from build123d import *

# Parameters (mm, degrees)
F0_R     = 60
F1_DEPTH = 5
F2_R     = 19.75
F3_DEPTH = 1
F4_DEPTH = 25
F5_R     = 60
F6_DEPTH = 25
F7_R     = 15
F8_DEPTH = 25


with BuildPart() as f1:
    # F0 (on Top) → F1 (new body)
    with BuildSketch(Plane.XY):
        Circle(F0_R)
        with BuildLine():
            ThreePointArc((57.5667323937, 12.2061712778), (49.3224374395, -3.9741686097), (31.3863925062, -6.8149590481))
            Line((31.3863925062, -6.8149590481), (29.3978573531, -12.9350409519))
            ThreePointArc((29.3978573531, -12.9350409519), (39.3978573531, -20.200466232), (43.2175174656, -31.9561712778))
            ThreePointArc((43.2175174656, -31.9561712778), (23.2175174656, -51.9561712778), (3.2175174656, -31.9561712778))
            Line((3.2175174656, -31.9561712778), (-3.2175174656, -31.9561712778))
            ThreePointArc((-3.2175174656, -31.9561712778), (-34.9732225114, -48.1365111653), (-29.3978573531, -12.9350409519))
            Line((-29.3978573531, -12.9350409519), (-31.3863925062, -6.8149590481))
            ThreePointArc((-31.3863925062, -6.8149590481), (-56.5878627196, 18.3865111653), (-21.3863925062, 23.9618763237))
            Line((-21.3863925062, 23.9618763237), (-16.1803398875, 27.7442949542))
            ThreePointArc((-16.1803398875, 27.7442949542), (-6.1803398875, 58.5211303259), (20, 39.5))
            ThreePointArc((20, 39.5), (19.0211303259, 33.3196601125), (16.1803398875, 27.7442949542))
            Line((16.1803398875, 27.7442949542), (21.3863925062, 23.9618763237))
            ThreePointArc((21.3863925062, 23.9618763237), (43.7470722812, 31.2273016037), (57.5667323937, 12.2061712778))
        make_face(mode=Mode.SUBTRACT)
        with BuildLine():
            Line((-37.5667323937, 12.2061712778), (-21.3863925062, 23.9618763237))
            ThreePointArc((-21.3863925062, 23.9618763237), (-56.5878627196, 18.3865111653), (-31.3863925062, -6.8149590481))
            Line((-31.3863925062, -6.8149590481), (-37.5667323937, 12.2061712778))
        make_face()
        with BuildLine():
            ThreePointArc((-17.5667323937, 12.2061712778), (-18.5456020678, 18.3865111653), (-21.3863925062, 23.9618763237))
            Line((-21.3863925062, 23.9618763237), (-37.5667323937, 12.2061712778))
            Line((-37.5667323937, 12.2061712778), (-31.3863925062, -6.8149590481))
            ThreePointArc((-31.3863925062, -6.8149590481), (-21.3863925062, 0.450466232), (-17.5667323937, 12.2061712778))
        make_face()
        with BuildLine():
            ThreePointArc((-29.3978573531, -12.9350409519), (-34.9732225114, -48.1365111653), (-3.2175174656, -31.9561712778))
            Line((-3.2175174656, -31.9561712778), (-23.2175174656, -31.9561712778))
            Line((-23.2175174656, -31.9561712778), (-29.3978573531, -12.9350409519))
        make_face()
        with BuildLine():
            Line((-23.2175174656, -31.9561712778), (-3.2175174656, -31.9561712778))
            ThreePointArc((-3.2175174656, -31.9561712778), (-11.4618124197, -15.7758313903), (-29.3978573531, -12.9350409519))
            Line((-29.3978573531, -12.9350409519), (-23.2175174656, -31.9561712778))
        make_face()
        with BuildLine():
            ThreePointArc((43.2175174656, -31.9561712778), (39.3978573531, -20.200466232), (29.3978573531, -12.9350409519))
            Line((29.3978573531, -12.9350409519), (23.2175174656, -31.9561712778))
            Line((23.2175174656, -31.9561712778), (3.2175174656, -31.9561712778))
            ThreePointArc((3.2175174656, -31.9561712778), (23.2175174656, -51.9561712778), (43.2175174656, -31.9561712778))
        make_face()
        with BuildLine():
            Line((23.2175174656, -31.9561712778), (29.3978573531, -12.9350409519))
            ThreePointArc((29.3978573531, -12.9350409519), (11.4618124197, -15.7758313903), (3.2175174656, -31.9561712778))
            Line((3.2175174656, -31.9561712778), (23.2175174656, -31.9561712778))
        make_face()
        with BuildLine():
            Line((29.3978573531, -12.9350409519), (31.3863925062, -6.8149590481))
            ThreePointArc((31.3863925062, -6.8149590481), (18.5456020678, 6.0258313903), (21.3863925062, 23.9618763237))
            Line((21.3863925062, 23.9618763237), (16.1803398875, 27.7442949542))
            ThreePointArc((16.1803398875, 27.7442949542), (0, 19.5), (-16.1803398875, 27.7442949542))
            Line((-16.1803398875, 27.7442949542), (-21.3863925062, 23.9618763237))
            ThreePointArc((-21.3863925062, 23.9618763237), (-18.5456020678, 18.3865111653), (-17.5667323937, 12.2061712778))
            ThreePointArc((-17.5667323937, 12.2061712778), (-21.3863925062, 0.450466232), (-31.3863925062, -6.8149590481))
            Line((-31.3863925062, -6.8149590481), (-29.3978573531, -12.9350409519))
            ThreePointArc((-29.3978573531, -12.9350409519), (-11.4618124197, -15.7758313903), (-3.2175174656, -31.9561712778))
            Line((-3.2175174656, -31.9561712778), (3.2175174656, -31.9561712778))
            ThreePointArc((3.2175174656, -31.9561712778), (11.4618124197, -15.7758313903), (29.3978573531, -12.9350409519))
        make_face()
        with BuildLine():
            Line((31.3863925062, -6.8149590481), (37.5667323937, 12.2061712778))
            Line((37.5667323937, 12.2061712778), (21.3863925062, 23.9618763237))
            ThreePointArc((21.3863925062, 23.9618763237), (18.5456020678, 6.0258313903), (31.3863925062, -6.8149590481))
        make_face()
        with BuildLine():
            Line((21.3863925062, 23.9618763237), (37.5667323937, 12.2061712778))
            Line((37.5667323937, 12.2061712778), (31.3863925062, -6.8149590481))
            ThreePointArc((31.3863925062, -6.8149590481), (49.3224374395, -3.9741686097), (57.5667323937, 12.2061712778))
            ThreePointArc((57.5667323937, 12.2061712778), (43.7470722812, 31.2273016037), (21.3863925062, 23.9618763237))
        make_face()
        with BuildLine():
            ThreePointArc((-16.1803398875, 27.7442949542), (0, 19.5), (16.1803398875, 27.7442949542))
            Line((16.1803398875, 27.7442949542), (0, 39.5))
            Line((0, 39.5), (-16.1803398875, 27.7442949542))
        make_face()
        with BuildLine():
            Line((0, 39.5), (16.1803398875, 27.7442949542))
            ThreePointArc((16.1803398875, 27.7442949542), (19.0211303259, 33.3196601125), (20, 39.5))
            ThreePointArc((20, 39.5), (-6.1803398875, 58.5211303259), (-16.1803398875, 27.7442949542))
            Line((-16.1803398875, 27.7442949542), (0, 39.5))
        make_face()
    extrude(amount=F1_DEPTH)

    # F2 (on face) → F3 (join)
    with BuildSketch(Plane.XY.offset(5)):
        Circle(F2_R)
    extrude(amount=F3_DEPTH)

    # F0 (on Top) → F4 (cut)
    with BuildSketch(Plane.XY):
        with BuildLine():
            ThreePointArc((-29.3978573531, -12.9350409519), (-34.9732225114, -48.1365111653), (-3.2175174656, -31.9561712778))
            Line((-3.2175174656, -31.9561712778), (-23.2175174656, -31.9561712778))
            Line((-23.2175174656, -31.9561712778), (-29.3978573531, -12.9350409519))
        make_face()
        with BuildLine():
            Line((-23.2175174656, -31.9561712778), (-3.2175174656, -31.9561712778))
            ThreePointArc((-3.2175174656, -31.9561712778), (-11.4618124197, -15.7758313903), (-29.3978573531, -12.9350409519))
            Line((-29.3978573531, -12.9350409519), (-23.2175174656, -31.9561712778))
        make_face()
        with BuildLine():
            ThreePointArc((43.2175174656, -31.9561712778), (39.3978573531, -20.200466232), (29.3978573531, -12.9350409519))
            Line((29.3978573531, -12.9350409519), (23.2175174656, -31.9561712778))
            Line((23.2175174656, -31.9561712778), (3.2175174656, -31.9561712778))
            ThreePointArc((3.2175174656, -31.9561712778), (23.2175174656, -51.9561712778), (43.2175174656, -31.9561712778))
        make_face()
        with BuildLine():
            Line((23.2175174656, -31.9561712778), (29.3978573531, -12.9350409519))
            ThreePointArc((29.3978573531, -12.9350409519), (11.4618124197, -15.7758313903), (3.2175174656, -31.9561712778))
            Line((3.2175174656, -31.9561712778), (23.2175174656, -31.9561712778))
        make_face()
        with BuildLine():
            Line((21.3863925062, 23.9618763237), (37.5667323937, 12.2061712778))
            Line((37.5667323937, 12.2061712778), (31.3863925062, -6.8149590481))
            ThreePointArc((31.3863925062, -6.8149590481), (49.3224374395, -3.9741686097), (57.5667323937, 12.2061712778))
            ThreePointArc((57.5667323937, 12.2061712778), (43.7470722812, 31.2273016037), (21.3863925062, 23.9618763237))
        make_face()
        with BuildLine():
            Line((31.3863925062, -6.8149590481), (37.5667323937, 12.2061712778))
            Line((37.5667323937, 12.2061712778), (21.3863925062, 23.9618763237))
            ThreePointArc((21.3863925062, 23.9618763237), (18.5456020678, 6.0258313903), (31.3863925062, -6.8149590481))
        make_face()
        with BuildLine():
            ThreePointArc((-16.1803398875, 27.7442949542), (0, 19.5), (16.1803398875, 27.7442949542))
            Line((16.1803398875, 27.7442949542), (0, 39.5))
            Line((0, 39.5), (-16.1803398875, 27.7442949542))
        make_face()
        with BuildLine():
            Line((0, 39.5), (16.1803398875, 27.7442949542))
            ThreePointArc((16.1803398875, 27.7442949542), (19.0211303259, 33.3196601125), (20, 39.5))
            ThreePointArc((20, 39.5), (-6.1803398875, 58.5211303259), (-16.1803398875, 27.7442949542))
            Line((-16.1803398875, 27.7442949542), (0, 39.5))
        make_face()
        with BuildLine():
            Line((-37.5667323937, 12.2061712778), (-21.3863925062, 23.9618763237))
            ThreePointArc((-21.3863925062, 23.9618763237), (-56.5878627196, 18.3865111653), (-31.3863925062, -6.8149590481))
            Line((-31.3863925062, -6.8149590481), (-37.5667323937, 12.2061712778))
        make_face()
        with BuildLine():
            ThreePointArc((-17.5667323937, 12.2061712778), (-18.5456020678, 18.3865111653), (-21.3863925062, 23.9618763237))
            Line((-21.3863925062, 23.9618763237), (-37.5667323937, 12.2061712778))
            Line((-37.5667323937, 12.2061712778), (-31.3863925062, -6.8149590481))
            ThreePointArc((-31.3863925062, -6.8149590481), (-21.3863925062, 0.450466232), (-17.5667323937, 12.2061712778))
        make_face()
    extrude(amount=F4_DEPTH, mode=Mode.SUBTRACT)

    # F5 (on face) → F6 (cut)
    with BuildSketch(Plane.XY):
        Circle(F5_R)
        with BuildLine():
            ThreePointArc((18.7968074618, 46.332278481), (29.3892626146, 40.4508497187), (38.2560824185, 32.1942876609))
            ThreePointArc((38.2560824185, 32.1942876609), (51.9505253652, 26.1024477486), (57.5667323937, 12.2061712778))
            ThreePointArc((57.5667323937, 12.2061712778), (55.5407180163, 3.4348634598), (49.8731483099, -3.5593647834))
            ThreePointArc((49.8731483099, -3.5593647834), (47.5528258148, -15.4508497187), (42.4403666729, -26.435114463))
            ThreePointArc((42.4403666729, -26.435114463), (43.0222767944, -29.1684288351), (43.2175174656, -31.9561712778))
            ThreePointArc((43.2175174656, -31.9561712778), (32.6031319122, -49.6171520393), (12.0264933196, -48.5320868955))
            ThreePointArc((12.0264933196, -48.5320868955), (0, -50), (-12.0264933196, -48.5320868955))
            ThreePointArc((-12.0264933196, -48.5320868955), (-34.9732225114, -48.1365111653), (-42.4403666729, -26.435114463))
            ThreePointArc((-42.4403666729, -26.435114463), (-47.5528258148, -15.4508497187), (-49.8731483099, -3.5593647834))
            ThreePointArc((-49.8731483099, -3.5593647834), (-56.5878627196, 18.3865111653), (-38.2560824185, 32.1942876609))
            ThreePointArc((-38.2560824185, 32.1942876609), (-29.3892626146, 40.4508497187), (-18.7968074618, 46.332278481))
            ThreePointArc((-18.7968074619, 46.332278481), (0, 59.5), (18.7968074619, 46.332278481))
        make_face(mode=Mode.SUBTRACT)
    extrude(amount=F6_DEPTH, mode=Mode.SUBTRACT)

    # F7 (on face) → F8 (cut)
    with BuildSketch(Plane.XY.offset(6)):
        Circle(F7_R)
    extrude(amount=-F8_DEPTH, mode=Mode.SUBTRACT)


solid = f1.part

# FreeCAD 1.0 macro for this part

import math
import FreeCAD as App
import Part
import Sketcher
from FreeCAD import Vector

doc = App.newDocument("Part")
body = doc.addObject("PartDesign::Body", "Body")

# Sketch on XY plane
sketch1 = body.newObject("Sketcher::SketchObject", "Sketch")
sketch1.AttachmentSupport = (doc.getObject("XY_Plane"), [""])
sketch1.MapMode = "FlatFace"
sketch1.addGeometry(Part.Circle(Vector(0, 0, 0), Vector(0, 0, 1), 60), False)
sketch1.addConstraint([
    Sketcher.Constraint("Coincident", 0, 3, -1, 1),
    Sketcher.Constraint("Diameter", 0, 120.0),
])
pad1 = body.newObject("PartDesign::Pad", "Pad")
pad1.Profile = sketch1
pad1.Length = 5

# Sketch on XY plane
sketch2 = body.newObject("Sketcher::SketchObject", "Sketch001")
sketch2.AttachmentSupport = (doc.getObject("XY_Plane"), [""])
sketch2.MapMode = "FlatFace"
sketch2.AttachmentOffset = App.Placement(Vector(0, 0, 5), App.Rotation())
sketch2.addGeometry(Part.Circle(Vector(0, 0, 0), Vector(0, 0, 1), 19.75), False)
sketch2.addConstraint([
    Sketcher.Constraint("Coincident", 0, 3, -1, 1),
    Sketcher.Constraint("Diameter", 0, 39.5),
])
pad2 = body.newObject("PartDesign::Pad", "Pad001")
pad2.Profile = sketch2
pad2.Length = 1

# Sketch on XY plane
sketch3 = body.newObject("Sketcher::SketchObject", "Sketch002")
sketch3.AttachmentSupport = (doc.getObject("XY_Plane"), [""])
sketch3.MapMode = "FlatFace"
sketch3.addGeometry([
    Part.ArcOfCircle(Part.Circle(Vector(-23.217517, -31.956171, 0), Vector(0, 0, 1), 20), math.radians(108), math.radians(360)),  # 0
    Part.ArcOfCircle(Part.Circle(Vector(-23.217517, -31.956171, 0), Vector(0, 0, 1), 20), math.radians(0), math.radians(108)),  # 1
    Part.ArcOfCircle(Part.Circle(Vector(23.217517, -31.956171, 0), Vector(0, 0, 1), 20), math.radians(0), math.radians(180)),  # 2
    Part.ArcOfCircle(Part.Circle(Vector(23.217517, -31.956171, 0), Vector(0, 0, 1), 20), math.radians(180), math.radians(360)),  # 3
    Part.ArcOfCircle(Part.Circle(Vector(37.566732, 12.206171, 0), Vector(0, 0, 1), 20), math.radians(-108), math.radians(0)),  # 4
    Part.ArcOfCircle(Part.Circle(Vector(37.566732, 12.206171, 0), Vector(0, 0, 1), 20), math.radians(0), math.radians(144)),  # 5
    Part.ArcOfCircle(Part.Circle(Vector(37.566732, 12.206171, 0), Vector(0, 0, 1), 20), math.radians(144), math.radians(252)),  # 6
    Part.ArcOfCircle(Part.Circle(Vector(0, 39.5, 0), Vector(0, 0, 1), 20), math.radians(-144), math.radians(-36)),  # 7
    Part.ArcOfCircle(Part.Circle(Vector(0, 39.5, 0), Vector(0, 0, 1), 20), math.radians(-36), math.radians(0)),  # 8
    Part.ArcOfCircle(Part.Circle(Vector(0, 39.5, 0), Vector(0, 0, 1), 20), math.radians(0), math.radians(216)),  # 9
    Part.ArcOfCircle(Part.Circle(Vector(-37.566732, 12.206171, 0), Vector(0, 0, 1), 20), math.radians(36), math.radians(288)),  # 10
    Part.ArcOfCircle(Part.Circle(Vector(-37.566732, 12.206171, 0), Vector(0, 0, 1), 20), math.radians(-72), math.radians(0)),  # 11
    Part.ArcOfCircle(Part.Circle(Vector(-37.566732, 12.206171, 0), Vector(0, 0, 1), 20), math.radians(0), math.radians(36)),  # 12
], False)
sketch3.addConstraint([
    Sketcher.Constraint("Tangent", 0, 1, 1, 2),
    Sketcher.Constraint("Coincident", 1, 1, 0, 2),
    Sketcher.Constraint("Tangent", 2, 1, 3, 2),
    Sketcher.Constraint("Coincident", 3, 1, 2, 2),
    Sketcher.Constraint("Tangent", 4, 2, 5, 1),
    Sketcher.Constraint("Tangent", 5, 2, 6, 1),
    Sketcher.Constraint("Tangent", 6, 2, 4, 1),
    Sketcher.Constraint("Tangent", 7, 2, 8, 1),
    Sketcher.Constraint("Tangent", 8, 2, 9, 1),
    Sketcher.Constraint("Tangent", 9, 2, 7, 1),
    Sketcher.Constraint("Tangent", 10, 2, 11, 1),
    Sketcher.Constraint("Tangent", 11, 2, 12, 1),
    Sketcher.Constraint("Tangent", 12, 2, 10, 1),
    Sketcher.Constraint("Equal", 1, 2),
    Sketcher.Constraint("Equal", 3, 4),
    Sketcher.Constraint("Equal", 6, 7),
    Sketcher.Constraint("Equal", 9, 10),
    Sketcher.Constraint("Symmetric", 0, 3, 2, 3, -2),
    Sketcher.Constraint("Symmetric", 4, 3, 10, 3, -2),
    Sketcher.Constraint("Symmetric", 7, 2, 9, 2, -2),
    Sketcher.Constraint("Horizontal", 3, 3, 1, 1),
    Sketcher.Constraint("Horizontal", 1, 1, 2, 1),
    Sketcher.Constraint("Horizontal", 2, 1, 3, 1),
    Sketcher.Constraint("Horizontal", 12, 3, 4, 2),
    Sketcher.Constraint("Horizontal", 9, 3, 8, 2),
    Sketcher.Constraint("Horizontal", 6, 2, 10, 2),
    Sketcher.Constraint("Horizontal", 4, 2, 11, 2),
    Sketcher.Constraint("Horizontal", 5, 2, 12, 2),
    Sketcher.Constraint("Radius", 0, 20.0),
    Sketcher.Constraint("DistanceY", -1, 1, 7, 3, 39.5),
    Sketcher.Constraint("DistanceY", 0, 3, -1, 1, 31.956171),
    Sketcher.Constraint("DistanceY", -1, 1, 4, 3, 12.206171),
    Sketcher.Constraint("DistanceY", 0, 1, -1, 1, 12.935041),
    Sketcher.Constraint("DistanceY", 6, 2, -1, 1, 6.814959),
    Sketcher.Constraint("DistanceX", -1, 1, 7, 2, 16.18034),
    Sketcher.Constraint("DistanceX", 0, 3, 4, 3, 60.78425),
    Sketcher.Constraint("DistanceX", 5, 2, 4, 3, 16.18034),
    Sketcher.Constraint("DistanceX", 0, 3, -1, 1, 23.217517),
])
pocket1 = body.newObject("PartDesign::Pocket", "Pocket")
pocket1.Profile = sketch3
pocket1.Length = 25
pocket1.Reversed = True

# Sketch on XY plane
sketch4 = body.newObject("Sketcher::SketchObject", "Sketch003")
sketch4.AttachmentSupport = (doc.getObject("XY_Plane"), [""])
sketch4.MapMode = "FlatFace"
sketch4.addGeometry([
    Part.Circle(Vector(0, 0, 0), Vector(0, 0, 1), 60),  # 0
    Part.ArcOfCircle(Part.Circle(Vector(0, 39.5, 0), Vector(0, 0, 1), 20), math.radians(19.975234), math.radians(160.024766)),  # 1
    Part.ArcOfCircle(Part.Circle(Vector(0, 0, 0), Vector(0, 0, 1), 50), math.radians(40.082184), math.radians(67.917816)),  # 2
    Part.ArcOfCircle(Part.Circle(Vector(37.566732, 12.206171, 0), Vector(0, 0, 1), 20), math.radians(0), math.radians(88.024766)),  # 3
    Part.ArcOfCircle(Part.Circle(Vector(37.566732, 12.206171, 0), Vector(0, 0, 1), 20), math.radians(-52.024766), math.radians(0)),  # 4
    Part.ArcOfCircle(Part.Circle(Vector(0, 0, 0), Vector(0, 0, 1), 50), math.radians(-31.917816), math.radians(-4.082184)),  # 5
    Part.ArcOfCircle(Part.Circle(Vector(23.217517, -31.956171, 0), Vector(0, 0, 1), 20), math.radians(0), math.radians(16.024766)),  # 6
    Part.ArcOfCircle(Part.Circle(Vector(23.217517, -31.956171, 0), Vector(0, 0, 1), 20), math.radians(-124.024766), math.radians(0)),  # 7
    Part.ArcOfCircle(Part.Circle(Vector(0, 0, 0), Vector(0, 0, 1), 50), math.radians(-103.917816), math.radians(-76.082184)),  # 8
    Part.ArcOfCircle(Part.Circle(Vector(-23.217517, -31.956171, 0), Vector(0, 0, 1), 20), math.radians(163.975234), math.radians(304.024766)),  # 9
    Part.ArcOfCircle(Part.Circle(Vector(0, 0, 0), Vector(0, 0, 1), 50), math.radians(-175.917816), math.radians(-148.082184)),  # 10
    Part.ArcOfCircle(Part.Circle(Vector(-37.566732, 12.206171, 0), Vector(0, 0, 1), 20), math.radians(91.975234), math.radians(232.024766)),  # 11
    Part.ArcOfCircle(Part.Circle(Vector(0, 0, 0), Vector(0, 0, 1), 50), math.radians(112.082184), math.radians(139.917816)),  # 12
], False)
sketch4.addConstraint([
    Sketcher.Constraint("Coincident", 1, 1, 2, 2),
    Sketcher.Constraint("Coincident", 2, 1, 3, 2),
    Sketcher.Constraint("Tangent", 3, 1, 4, 2),
    Sketcher.Constraint("Coincident", 4, 1, 5, 2),
    Sketcher.Constraint("Coincident", 5, 1, 6, 2),
    Sketcher.Constraint("Tangent", 6, 1, 7, 2),
    Sketcher.Constraint("Coincident", 7, 1, 8, 2),
    Sketcher.Constraint("Coincident", 8, 1, 9, 2),
    Sketcher.Constraint("Coincident", 9, 1, 10, 2),
    Sketcher.Constraint("Coincident", 10, 1, 11, 2),
    Sketcher.Constraint("Coincident", 11, 1, 12, 2),
    Sketcher.Constraint("Coincident", 12, 1, 1, 2),
    Sketcher.Constraint("Coincident", 0, 3, -1, 1),
    Sketcher.Constraint("Coincident", 2, 3, -1, 1),
    Sketcher.Constraint("Coincident", 5, 3, -1, 1),
    Sketcher.Constraint("Coincident", 8, 3, -1, 1),
    Sketcher.Constraint("Coincident", 10, 3, -1, 1),
    Sketcher.Constraint("Coincident", 12, 3, -1, 1),
    Sketcher.Constraint("Equal", 1, 3),
    Sketcher.Constraint("Equal", 3, 4),
    Sketcher.Constraint("Equal", 2, 5),
    Sketcher.Constraint("Equal", 4, 6),
    Sketcher.Constraint("Equal", 6, 7),
    Sketcher.Constraint("Equal", 5, 8),
    Sketcher.Constraint("Equal", 7, 9),
    Sketcher.Constraint("Equal", 8, 10),
    Sketcher.Constraint("Equal", 9, 11),
    Sketcher.Constraint("Equal", 10, 12),
    Sketcher.Constraint("Symmetric", 6, 3, 9, 3, -2),
    Sketcher.Constraint("Symmetric", 3, 3, 11, 3, -2),
    Sketcher.Constraint("PointOnObject", 1, 3, -2),
    Sketcher.Constraint("Horizontal", 11, 3, 3, 1),
    Sketcher.Constraint("Horizontal", 9, 3, 6, 1),
    Sketcher.Constraint("Diameter", 0, 120.0),
    Sketcher.Constraint("Radius", 1, 20.0),
    Sketcher.Constraint("Radius", 2, 50.0),
    Sketcher.Constraint("DistanceY", -1, 1, 1, 3, 39.5),
    Sketcher.Constraint("DistanceY", -1, 1, 3, 3, 12.206171),
    Sketcher.Constraint("DistanceY", 6, 3, -1, 1, 31.956171),
    Sketcher.Constraint("DistanceX", -1, 1, 4, 1, 49.873148),
    Sketcher.Constraint("DistanceX", 7, 3, 4, 1, 26.655631),
])
pocket2 = body.newObject("PartDesign::Pocket", "Pocket001")
pocket2.Profile = sketch4
pocket2.Length = 25
pocket2.Reversed = True

# Sketch on XY plane
sketch5 = body.newObject("Sketcher::SketchObject", "Sketch004")
sketch5.AttachmentSupport = (doc.getObject("XY_Plane"), [""])
sketch5.MapMode = "FlatFace"
sketch5.AttachmentOffset = App.Placement(Vector(0, 0, 6), App.Rotation())
sketch5.addGeometry(Part.Circle(Vector(0, 0, 0), Vector(0, 0, 1), 15), False)
sketch5.addConstraint([
    Sketcher.Constraint("Coincident", 0, 3, -1, 1),
    Sketcher.Constraint("Diameter", 0, 30.0),
])
pocket3 = body.newObject("PartDesign::Pocket", "Pocket002")
pocket3.Profile = sketch5
pocket3.Length = 25

doc.recompute()
